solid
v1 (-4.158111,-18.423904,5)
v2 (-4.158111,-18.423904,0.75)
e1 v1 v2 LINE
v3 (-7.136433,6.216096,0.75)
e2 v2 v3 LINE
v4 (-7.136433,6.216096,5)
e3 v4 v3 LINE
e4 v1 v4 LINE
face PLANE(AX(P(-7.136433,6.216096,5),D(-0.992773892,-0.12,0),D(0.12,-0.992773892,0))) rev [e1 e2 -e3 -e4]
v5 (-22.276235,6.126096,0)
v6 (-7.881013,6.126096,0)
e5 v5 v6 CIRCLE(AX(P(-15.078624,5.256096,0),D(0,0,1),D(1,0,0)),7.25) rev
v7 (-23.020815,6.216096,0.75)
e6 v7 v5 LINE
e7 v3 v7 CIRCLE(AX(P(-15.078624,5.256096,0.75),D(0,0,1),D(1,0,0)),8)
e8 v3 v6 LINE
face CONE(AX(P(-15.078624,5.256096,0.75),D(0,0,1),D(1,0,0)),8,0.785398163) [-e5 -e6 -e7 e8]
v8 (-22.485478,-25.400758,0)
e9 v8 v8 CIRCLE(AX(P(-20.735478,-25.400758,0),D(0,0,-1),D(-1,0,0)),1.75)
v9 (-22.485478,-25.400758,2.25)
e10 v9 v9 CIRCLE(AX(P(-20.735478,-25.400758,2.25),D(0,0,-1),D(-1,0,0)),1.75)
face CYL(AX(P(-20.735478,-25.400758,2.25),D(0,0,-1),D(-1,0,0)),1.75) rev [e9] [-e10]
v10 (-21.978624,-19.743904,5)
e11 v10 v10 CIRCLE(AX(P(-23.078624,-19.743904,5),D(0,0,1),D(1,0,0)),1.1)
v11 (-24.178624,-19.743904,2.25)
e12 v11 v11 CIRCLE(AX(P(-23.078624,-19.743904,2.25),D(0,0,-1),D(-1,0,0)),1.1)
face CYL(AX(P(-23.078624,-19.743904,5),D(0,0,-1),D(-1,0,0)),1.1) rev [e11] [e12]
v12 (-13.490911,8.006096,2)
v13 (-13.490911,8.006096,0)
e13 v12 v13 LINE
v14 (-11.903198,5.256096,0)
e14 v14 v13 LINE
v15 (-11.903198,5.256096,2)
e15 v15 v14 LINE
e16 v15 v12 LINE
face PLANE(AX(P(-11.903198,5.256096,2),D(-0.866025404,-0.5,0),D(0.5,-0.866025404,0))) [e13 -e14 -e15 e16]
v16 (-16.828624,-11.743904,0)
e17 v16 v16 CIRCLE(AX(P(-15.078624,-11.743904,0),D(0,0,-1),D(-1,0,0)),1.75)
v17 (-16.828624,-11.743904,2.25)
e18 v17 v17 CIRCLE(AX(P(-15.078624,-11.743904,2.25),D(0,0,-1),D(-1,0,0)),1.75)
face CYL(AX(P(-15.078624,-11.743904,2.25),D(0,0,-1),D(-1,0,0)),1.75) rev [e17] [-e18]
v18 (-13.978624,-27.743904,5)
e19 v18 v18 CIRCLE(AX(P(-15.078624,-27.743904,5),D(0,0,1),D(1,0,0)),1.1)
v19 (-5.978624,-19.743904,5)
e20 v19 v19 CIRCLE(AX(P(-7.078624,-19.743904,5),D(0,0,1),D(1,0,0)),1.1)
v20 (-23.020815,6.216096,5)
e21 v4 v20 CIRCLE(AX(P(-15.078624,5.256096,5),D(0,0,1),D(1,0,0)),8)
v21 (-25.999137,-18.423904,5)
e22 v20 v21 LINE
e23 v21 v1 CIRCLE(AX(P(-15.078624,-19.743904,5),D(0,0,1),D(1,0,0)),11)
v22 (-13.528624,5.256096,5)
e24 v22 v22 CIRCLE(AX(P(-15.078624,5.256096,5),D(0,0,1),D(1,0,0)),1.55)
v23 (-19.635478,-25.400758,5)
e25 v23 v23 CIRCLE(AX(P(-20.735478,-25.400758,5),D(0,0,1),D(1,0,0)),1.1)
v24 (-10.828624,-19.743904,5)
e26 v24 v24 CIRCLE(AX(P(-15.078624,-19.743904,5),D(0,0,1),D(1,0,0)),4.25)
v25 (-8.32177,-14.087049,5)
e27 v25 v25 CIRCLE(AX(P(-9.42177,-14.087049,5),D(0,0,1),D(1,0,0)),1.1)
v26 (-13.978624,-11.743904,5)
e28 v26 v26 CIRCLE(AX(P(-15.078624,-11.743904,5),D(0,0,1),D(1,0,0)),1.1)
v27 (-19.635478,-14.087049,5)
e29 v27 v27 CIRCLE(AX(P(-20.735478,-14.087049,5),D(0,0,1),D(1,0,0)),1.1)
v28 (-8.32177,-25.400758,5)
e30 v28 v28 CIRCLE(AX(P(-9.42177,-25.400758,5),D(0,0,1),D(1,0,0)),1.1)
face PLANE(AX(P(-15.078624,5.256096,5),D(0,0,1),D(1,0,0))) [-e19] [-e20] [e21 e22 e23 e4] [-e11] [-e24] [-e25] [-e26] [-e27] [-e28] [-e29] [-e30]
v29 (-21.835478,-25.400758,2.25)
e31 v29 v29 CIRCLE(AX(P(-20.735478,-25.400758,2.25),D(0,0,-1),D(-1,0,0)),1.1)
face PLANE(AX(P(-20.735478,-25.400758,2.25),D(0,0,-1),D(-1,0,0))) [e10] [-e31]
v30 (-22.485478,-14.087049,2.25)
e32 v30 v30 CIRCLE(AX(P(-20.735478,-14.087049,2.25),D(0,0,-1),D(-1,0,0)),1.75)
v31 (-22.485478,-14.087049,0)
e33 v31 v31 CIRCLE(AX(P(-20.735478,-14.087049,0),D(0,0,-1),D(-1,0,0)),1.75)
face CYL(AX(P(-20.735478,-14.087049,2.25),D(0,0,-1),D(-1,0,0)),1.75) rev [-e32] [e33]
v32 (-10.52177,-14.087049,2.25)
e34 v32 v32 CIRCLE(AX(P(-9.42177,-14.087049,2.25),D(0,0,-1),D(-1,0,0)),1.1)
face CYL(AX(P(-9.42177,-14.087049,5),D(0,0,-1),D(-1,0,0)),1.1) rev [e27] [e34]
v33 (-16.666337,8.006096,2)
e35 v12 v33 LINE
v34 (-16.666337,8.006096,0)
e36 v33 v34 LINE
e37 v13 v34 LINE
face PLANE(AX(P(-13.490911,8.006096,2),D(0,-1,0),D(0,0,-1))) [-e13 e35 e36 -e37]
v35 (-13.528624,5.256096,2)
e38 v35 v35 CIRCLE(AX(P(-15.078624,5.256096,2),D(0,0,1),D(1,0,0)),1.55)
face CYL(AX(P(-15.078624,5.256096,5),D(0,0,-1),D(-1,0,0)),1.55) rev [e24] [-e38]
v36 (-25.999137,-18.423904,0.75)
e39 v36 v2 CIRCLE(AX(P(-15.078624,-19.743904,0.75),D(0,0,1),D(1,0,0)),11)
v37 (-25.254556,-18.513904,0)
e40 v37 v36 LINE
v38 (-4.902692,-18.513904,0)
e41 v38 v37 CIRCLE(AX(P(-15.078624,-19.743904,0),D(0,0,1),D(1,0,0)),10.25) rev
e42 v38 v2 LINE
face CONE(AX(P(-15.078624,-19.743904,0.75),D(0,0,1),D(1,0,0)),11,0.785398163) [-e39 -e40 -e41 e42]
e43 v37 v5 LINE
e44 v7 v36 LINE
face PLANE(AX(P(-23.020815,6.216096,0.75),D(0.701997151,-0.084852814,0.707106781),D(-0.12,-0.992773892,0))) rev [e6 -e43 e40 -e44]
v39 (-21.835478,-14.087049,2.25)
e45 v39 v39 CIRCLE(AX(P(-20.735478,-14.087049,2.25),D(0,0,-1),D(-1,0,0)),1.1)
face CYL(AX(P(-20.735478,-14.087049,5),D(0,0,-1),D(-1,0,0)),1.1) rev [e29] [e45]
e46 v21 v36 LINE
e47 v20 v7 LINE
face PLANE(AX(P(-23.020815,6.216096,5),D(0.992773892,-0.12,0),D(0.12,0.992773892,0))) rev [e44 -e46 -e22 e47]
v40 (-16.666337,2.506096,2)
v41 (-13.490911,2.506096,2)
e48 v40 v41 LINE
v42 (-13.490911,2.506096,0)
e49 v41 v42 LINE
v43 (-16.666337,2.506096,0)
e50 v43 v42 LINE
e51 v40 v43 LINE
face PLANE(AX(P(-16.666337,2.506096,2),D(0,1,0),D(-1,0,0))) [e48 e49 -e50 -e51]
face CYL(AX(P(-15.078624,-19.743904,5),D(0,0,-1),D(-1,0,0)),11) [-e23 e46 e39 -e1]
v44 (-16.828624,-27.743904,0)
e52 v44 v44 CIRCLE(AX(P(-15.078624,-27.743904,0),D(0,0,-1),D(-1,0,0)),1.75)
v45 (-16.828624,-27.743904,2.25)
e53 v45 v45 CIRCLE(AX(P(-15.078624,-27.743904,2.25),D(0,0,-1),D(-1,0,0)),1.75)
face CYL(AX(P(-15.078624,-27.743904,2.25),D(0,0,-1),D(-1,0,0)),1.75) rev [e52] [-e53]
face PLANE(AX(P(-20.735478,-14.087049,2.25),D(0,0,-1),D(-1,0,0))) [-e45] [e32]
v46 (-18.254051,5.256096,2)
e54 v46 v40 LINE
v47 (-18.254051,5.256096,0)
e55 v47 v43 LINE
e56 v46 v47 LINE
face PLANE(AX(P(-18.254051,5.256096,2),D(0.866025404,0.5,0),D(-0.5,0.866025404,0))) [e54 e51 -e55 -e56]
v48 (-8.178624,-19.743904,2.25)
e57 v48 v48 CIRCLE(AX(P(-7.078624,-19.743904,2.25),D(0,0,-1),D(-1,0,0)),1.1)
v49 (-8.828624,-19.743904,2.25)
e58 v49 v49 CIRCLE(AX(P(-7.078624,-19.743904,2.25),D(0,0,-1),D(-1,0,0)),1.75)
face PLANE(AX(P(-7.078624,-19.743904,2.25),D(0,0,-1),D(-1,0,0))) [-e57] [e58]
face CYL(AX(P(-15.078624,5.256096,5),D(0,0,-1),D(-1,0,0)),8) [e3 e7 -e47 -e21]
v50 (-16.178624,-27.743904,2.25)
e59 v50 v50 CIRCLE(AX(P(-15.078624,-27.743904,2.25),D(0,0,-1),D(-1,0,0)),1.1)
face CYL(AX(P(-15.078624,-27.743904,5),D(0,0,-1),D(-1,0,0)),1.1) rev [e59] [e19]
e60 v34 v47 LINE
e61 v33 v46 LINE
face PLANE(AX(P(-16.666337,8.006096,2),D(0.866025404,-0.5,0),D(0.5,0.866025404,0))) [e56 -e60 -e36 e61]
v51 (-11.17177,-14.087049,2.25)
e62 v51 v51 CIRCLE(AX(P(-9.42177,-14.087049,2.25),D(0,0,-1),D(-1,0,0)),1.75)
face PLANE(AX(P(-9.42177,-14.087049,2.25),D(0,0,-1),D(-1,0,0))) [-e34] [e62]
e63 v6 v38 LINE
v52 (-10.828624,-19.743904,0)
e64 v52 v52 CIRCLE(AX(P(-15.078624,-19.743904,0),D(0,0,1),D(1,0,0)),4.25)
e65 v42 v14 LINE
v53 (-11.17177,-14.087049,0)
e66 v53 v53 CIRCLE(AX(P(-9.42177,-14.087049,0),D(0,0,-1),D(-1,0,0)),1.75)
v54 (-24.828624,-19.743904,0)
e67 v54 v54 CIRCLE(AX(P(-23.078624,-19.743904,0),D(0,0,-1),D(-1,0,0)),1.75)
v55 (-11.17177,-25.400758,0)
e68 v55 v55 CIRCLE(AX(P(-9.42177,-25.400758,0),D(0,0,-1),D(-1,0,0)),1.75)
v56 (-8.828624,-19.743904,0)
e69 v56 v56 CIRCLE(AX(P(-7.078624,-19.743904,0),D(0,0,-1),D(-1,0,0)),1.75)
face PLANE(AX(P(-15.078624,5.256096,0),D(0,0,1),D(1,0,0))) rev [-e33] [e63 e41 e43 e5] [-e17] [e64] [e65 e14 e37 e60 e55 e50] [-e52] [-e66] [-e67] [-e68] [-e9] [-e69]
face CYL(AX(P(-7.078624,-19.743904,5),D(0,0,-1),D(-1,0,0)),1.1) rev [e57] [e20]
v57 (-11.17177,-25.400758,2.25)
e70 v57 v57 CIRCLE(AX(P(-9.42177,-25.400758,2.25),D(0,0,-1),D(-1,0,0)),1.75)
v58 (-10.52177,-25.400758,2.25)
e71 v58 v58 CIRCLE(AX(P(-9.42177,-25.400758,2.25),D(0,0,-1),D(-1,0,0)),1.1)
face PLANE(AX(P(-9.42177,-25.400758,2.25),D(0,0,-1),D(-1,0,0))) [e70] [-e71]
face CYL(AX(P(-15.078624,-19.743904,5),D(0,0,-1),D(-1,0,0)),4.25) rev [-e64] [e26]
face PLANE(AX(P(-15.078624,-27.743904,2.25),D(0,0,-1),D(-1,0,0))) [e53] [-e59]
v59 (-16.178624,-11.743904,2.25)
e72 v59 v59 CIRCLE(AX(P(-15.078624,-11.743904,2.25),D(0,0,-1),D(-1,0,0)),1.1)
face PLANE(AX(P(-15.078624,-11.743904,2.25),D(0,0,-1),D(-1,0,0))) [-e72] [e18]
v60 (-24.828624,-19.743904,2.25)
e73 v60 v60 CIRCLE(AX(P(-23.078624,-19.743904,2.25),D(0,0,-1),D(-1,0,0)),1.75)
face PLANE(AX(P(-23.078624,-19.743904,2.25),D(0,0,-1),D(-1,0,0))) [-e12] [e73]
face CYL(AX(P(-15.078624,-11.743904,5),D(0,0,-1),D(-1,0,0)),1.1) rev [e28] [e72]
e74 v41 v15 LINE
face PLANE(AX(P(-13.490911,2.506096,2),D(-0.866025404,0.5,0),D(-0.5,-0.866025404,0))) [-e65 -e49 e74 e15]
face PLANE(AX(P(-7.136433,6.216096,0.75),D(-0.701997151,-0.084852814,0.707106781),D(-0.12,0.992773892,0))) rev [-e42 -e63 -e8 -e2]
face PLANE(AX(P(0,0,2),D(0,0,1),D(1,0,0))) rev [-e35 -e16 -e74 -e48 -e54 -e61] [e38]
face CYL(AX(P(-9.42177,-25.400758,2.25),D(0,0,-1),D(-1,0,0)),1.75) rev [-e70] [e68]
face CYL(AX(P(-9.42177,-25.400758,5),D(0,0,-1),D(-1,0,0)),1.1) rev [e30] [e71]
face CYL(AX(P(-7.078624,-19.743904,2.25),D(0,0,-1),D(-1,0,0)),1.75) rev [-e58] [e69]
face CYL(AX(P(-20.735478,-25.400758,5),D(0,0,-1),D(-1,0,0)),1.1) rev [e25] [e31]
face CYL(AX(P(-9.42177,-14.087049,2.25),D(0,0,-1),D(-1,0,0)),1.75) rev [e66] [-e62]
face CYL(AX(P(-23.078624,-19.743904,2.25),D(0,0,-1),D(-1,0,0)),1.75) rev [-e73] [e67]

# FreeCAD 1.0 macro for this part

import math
import FreeCAD as App
import Part
import Sketcher
from FreeCAD import Vector
Q = App.Units.Quantity


def edges_at(feature, points):
    """Names of the edges that pass closest to the given points."""
    edges = feature.Shape.Edges
    near = lambda p: min(range(len(edges)), key=lambda i: edges[i].distToShape(Part.Vertex(*p))[0])
    return sorted({f"Edge{near(p) + 1}" for p in points})

doc = App.newDocument("Part")
body = doc.addObject("PartDesign::Body", "Body")

sketch1 = doc.addObject("Sketcher::SketchObject", "Sketch")
body.addObject(sketch1)
sketch1.AttachmentSupport = (doc.XY_Plane, [""])
sketch1.MapMode = "FlatFace"
sketch1.addGeometry([
    Part.LineSegment(Vector(-23.020815, 6.216096, 0), Vector(-25.999137, -18.423904, 0)),
    Part.ArcOfCircle(Part.Circle(Vector(-15.078624, -19.743904, 0), Vector(0, 0, 1), 11), math.radians(173.107897), math.radians(366.892103)),
    Part.LineSegment(Vector(-4.158111, -18.423904, 0), Vector(-7.136433, 6.216096, 0)),
    Part.ArcOfCircle(Part.Circle(Vector(-15.078624, 5.256096, 0), Vector(0, 0, 1), 8), math.radians(6.892103), math.radians(173.107897)),
    Part.Circle(Vector(-20.735478, -25.400758, 0), Vector(0, 0, 1), 1.1),
    Part.Circle(Vector(-23.078624, -19.743904, 0), Vector(0, 0, 1), 1.1),
    Part.Circle(Vector(-20.735478, -14.087049, 0), Vector(0, 0, 1), 1.1),
    Part.Circle(Vector(-15.078624, -27.743904, 0), Vector(0, 0, 1), 1.1),
    Part.Circle(Vector(-9.42177, -25.400758, 0), Vector(0, 0, 1), 1.1),
    Part.Circle(Vector(-15.078624, -19.743904, 0), Vector(0, 0, 1), 4.25),
    Part.Circle(Vector(-15.078624, -11.743904, 0), Vector(0, 0, 1), 1.1),
    Part.Circle(Vector(-7.078624, -19.743904, 0), Vector(0, 0, 1), 1.1),
    Part.Circle(Vector(-9.42177, -14.087049, 0), Vector(0, 0, 1), 1.1),
    Part.Circle(Vector(-15.078624, 5.256096, 0), Vector(0, 0, 1), 1.55),
], False)
sketch1.addConstraint([
    Sketcher.Constraint("Tangent", 0, 2, 1, 1),
    Sketcher.Constraint("Tangent", 1, 2, 2, 1),
    Sketcher.Constraint("Tangent", 2, 2, 3, 1),
    Sketcher.Constraint("Tangent", 3, 2, 0, 1),
    Sketcher.Constraint("Coincident", 9, 3, 1, 3),
    Sketcher.Constraint("Coincident", 13, 3, 3, 3),
    Sketcher.Constraint("Equal", 4, 5),
    Sketcher.Constraint("Equal", 5, 6),
    Sketcher.Constraint("Equal", 6, 7),
    Sketcher.Constraint("Equal", 7, 8),
    Sketcher.Constraint("Equal", 8, 10),
    Sketcher.Constraint("Equal", 10, 11),
    Sketcher.Constraint("Equal", 11, 12),
    Sketcher.Constraint("Horizontal", 1, 3, 5, 3),
    Sketcher.Constraint("Horizontal", 4, 3, 8, 3),
    Sketcher.Constraint("Horizontal", 9, 3, 11, 3),
    Sketcher.Constraint("Horizontal", 6, 3, 12, 3),
    Sketcher.Constraint("Horizontal", 0, 2, 1, 2),
    Sketcher.Constraint("Vertical", 4, 3, 6, 3),
    Sketcher.Constraint("Vertical", 3, 3, 7, 3),
    Sketcher.Constraint("Vertical", 9, 3, 10, 3),
    Sketcher.Constraint("Vertical", 8, 3, 12, 3),
    Sketcher.Constraint("Radius", 1, Q("11 mm")),
    Sketcher.Constraint("Radius", 3, Q("8 mm")),
    Sketcher.Constraint("Diameter", 4, Q("2.2 mm")),
    Sketcher.Constraint("Diameter", 9, Q("8.5 mm")),
    Sketcher.Constraint("Diameter", 13, Q("3.1 mm")),
    Sketcher.Constraint("DistanceY", 1, 3, 3, 3, Q("25 mm")),
    Sketcher.Constraint("DistanceX", 5, 3, 1, 3, Q("8 mm")),
    Sketcher.Constraint("DistanceY", 7, 3, 1, 3, Q("8 mm")),
    Sketcher.Constraint("DistanceY", 1, 3, 10, 3, Q("8 mm")),
    Sketcher.Constraint("DistanceX", 1, 3, 11, 3, Q("8 mm")),
    Sketcher.Constraint("DistanceX", 4, 3, -1, 1, Q("20.735478 mm")),
    Sketcher.Constraint("DistanceY", 6, 3, -1, 1, Q("14.087049 mm")),
    Sketcher.Constraint("DistanceX", 8, 3, -1, 1, Q("9.42177 mm")),
    Sketcher.Constraint("DistanceX", 1, 2, -1, 1, Q("4.158111 mm")),
    Sketcher.Constraint("DistanceY", 4, 3, 6, 3, Q("11.313708 mm")),
    Sketcher.Constraint("DistanceY", 1, 3, -1, 1, Q("19.743904 mm")),
])
pad1 = doc.addObject("PartDesign::Pad", "Pad")
body.addObject(pad1)
pad1.Profile = sketch1
pad1.Length = 5

sketch2 = doc.addObject("Sketcher::SketchObject", "Sketch001")
body.addObject(sketch2)
sketch2.AttachmentSupport = (doc.XY_Plane, [""])
sketch2.MapMode = "FlatFace"
sketch2.addGeometry([
    Part.LineSegment(Vector(-13.490911, 2.506096, 0), Vector(-11.903198, 5.256096, 0)),
    Part.LineSegment(Vector(-11.903198, 5.256096, 0), Vector(-13.490911, 8.006096, 0)),
    Part.LineSegment(Vector(-13.490911, 8.006096, 0), Vector(-16.666337, 8.006096, 0)),
    Part.LineSegment(Vector(-16.666337, 8.006096, 0), Vector(-18.254051, 5.256096, 0)),
    Part.LineSegment(Vector(-18.254051, 5.256096, 0), Vector(-16.666337, 2.506096, 0)),
    Part.LineSegment(Vector(-16.666337, 2.506096, 0), Vector(-13.490911, 2.506096, 0)),
], False)
sketch2.addConstraint([
    Sketcher.Constraint("Coincident", 0, 2, 1, 1),
    Sketcher.Constraint("Coincident", 1, 2, 2, 1),
    Sketcher.Constraint("Coincident", 2, 2, 3, 1),
    Sketcher.Constraint("Coincident", 3, 2, 4, 1),
    Sketcher.Constraint("Coincident", 4, 2, 5, 1),
    Sketcher.Constraint("Coincident", 5, 2, 0, 1),
    Sketcher.Constraint("Horizontal", 2),
    Sketcher.Constraint("Horizontal", 5),
    Sketcher.Constraint("Parallel", 0, 3),
    Sketcher.Constraint("Parallel", 1, 4),
    Sketcher.Constraint("Horizontal", 0, 2, 3, 2),
    Sketcher.Constraint("Vertical", 2, 2, 4, 2),
    Sketcher.Constraint("Vertical", 1, 2, 5, 2),
    Sketcher.Constraint("Angle", 0, Q("60 deg")),
    Sketcher.Constraint("DistanceY", 4, 2, 2, 2, Q("5.5 mm")),
    Sketcher.Constraint("DistanceX", 2, 2, 2, 1, Q("3.175426 mm")),
    Sketcher.Constraint("DistanceX", 1, 2, -1, 1, Q("13.490911 mm")),
    Sketcher.Constraint("DistanceY", -1, 1, 0, 2, Q("5.256096 mm")),
])
pocket1 = doc.addObject("PartDesign::Pocket", "Pocket")
body.addObject(pocket1)
pocket1.Profile = sketch2
pocket1.Length = 2
pocket1.Reversed = True

sketch3 = doc.addObject("Sketcher::SketchObject", "Sketch002")
body.addObject(sketch3)
sketch3.AttachmentSupport = (doc.XY_Plane, [""])
sketch3.MapMode = "FlatFace"
sketch3.addGeometry([
    Part.Circle(Vector(-23.078624, -19.743904, 0), Vector(0, 0, 1), 1.75),
    Part.Circle(Vector(-20.735478, -25.400758, 0), Vector(0, 0, 1), 1.75),
    Part.Circle(Vector(-15.078624, -27.743904, 0), Vector(0, 0, 1), 1.75),
    Part.Circle(Vector(-9.42177, -25.400758, 0), Vector(0, 0, 1), 1.75),
    Part.Circle(Vector(-7.078624, -19.743904, 0), Vector(0, 0, 1), 1.75),
    Part.Circle(Vector(-9.42177, -14.087049, 0), Vector(0, 0, 1), 1.75),
    Part.Circle(Vector(-15.078624, -11.743904, 0), Vector(0, 0, 1), 1.75),
    Part.Circle(Vector(-20.735478, -14.087049, 0), Vector(0, 0, 1), 1.75),
], False)
sketch3.addConstraint([
    Sketcher.Constraint("Equal", 0, 1),
    Sketcher.Constraint("Equal", 1, 2),
    Sketcher.Constraint("Equal", 2, 3),
    Sketcher.Constraint("Equal", 3, 4),
    Sketcher.Constraint("Equal", 4, 5),
    Sketcher.Constraint("Equal", 5, 6),
    Sketcher.Constraint("Equal", 6, 7),
    Sketcher.Constraint("Horizontal", 1, 3, 3, 3),
    Sketcher.Constraint("Horizontal", 0, 3, 4, 3),
    Sketcher.Constraint("Horizontal", 5, 3, 7, 3),
    Sketcher.Constraint("Vertical", 3, 3, 5, 3),
    Sketcher.Constraint("Vertical", 2, 3, 6, 3),
    Sketcher.Constraint("Vertical", 1, 3, 7, 3),
    Sketcher.Constraint("Diameter", 0, Q("3.5 mm")),
    Sketcher.Constraint("DistanceX", 0, 3, 2, 3, Q("8 mm")),
    Sketcher.Constraint("DistanceY", 2, 3, 0, 3, Q("8 mm")),
    Sketcher.Constraint("DistanceX", 2, 3, 4, 3, Q("8 mm")),
    Sketcher.Constraint("DistanceY", 4, 3, 6, 3, Q("8 mm")),
    Sketcher.Constraint("DistanceX", 1, 3, -1, 1, Q("20.735478 mm")),
    Sketcher.Constraint("DistanceX", 3, 3, -1, 1, Q("9.42177 mm")),
    Sketcher.Constraint("DistanceY", 5, 3, -1, 1, Q("14.087049 mm")),
    Sketcher.Constraint("DistanceY", 3, 3, 5, 3, Q("11.313708 mm")),
    Sketcher.Constraint("DistanceX", 0, 3, -1, 1, Q("23.078624 mm")),
    Sketcher.Constraint("DistanceY", 0, 3, -1, 1, Q("19.743904 mm")),
])
pocket2 = doc.addObject("PartDesign::Pocket", "Pocket001")
body.addObject(pocket2)
pocket2.Profile = sketch3
pocket2.Length = 2.25
pocket2.Reversed = True
doc.recompute()

chamfer = doc.addObject("PartDesign::Chamfer", "Chamfer")
body.addObject(chamfer)
chamfer.Base = (pocket2, edges_at(pocket2, [
    (-5.647, -6.104, 0),
    (-15.079, -30.744, 0),
    (-24.51, -6.104, 0),
    (-15.079, 13.256, 0),
]))
chamfer.Size = 0.75

doc.recompute()
